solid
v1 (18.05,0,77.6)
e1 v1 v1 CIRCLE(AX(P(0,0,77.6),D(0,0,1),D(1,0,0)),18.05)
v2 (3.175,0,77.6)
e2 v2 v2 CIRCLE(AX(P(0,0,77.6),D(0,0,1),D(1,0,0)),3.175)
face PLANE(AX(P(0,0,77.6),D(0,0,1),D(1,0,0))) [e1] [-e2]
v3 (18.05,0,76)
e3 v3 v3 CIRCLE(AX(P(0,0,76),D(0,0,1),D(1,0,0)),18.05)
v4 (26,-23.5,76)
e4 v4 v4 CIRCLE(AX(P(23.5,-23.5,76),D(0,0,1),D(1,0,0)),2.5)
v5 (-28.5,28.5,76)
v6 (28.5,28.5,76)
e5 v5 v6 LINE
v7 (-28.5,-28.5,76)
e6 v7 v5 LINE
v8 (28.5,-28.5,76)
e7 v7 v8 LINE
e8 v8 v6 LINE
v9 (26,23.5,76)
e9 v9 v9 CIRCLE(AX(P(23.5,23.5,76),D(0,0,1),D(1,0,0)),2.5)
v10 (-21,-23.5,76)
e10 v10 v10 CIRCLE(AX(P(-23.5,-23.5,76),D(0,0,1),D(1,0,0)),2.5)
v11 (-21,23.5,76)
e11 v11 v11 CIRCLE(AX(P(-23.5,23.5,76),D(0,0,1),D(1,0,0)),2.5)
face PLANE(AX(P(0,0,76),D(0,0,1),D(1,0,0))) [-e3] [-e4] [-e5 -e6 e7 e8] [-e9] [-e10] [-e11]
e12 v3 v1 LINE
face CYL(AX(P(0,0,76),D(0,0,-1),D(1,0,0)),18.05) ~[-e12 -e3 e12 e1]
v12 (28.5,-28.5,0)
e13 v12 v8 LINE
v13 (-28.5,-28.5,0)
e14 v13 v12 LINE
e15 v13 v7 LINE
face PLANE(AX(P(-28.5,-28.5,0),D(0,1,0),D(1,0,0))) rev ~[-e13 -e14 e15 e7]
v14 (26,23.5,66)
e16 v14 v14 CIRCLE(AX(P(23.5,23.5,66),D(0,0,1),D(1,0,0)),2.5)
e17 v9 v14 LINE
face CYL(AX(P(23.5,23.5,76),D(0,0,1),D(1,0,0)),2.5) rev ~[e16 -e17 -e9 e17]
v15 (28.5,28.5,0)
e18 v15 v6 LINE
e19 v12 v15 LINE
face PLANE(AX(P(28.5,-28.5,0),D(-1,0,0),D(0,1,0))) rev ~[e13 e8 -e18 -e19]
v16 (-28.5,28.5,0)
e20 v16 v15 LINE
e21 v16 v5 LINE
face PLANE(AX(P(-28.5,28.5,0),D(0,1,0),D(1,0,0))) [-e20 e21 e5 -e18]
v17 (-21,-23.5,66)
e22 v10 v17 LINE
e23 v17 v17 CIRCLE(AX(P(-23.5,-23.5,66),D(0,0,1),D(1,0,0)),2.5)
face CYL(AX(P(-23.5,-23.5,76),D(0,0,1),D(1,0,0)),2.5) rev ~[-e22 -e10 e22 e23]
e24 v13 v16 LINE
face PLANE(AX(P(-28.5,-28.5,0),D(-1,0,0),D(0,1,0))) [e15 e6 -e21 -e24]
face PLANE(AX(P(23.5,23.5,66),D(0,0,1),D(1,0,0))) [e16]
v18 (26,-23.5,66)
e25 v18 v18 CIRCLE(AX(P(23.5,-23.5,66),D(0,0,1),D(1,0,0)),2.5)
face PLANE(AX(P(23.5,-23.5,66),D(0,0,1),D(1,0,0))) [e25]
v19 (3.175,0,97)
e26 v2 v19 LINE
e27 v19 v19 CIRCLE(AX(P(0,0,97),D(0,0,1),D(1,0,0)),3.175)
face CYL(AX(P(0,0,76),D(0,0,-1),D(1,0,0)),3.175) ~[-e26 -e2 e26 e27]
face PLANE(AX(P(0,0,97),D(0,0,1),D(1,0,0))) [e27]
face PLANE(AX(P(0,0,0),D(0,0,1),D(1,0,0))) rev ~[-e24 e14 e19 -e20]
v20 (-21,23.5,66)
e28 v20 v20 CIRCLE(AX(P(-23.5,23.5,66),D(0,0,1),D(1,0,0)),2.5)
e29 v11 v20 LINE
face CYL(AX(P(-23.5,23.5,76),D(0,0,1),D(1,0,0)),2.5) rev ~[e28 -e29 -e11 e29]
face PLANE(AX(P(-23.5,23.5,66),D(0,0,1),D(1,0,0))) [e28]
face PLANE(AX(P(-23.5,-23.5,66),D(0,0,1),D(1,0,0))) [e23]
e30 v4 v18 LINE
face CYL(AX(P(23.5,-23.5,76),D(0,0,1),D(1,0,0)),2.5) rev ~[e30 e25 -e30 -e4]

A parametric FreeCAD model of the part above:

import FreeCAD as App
import Part
import Sketcher

doc = App.newDocument("Part")
body = doc.addObject("PartDesign::Body", "Body")

# Sketch on XY plane
sketch1 = body.newObject("Sketcher::SketchObject", "Sketch")
sketch1.AttachmentSupport = (doc.getObject("XY_Plane"), [""])
sketch1.MapMode = "FlatFace"
sketch1.addGeometry([
    Part.LineSegment(App.Vector(-28, 28, 0), App.Vector(-28, -28, 0)),
    Part.LineSegment(App.Vector(-28, -28, 0), App.Vector(28, -28, 0)),
    Part.LineSegment(App.Vector(28, -28, 0), App.Vector(28, 28, 0)),
    Part.LineSegment(App.Vector(28, 28, 0), App.Vector(-28, 28, 0)),
], False)
sketch1.addConstraint([
    Sketcher.Constraint("Coincident", 0, 2, 1, 1),
    Sketcher.Constraint("Coincident", 1, 2, 2, 1),
    Sketcher.Constraint("Coincident", 2, 2, 3, 1),
    Sketcher.Constraint("Coincident", 3, 2, 0, 1),
    Sketcher.Constraint("Vertical", 0),
    Sketcher.Constraint("Horizontal", 1),
    Sketcher.Constraint("Vertical", 2),
    Sketcher.Constraint("Horizontal", 3),
    Sketcher.Constraint("Symmetric", 0, 2, 2, 2, -1, 1),
    Sketcher.Constraint("Equal", 3, 0),
    Sketcher.Constraint("DistanceX", 1, 1, 1, 2, 57.0),
])
pad1 = body.newObject("PartDesign::Pad", "Pad")
pad1.Profile = sketch1
pad1.Length = 76

# Sketch on XY plane
sketch2 = body.newObject("Sketcher::SketchObject", "Sketch001")
sketch2.AttachmentSupport = (doc.getObject("XY_Plane"), [""])
sketch2.MapMode = "FlatFace"
sketch2.AttachmentOffset = App.Placement(App.Vector(0, 0, 76), App.Rotation())
sketch2.addGeometry([
    Part.Circle(App.Vector(0, 0, 0), App.Vector(0, 0, 1), 18.1),
    Part.Circle(App.Vector(0, 0, 0), App.Vector(0, 0, 1), 3.2),
], False)
sketch2.addConstraint([
    Sketcher.Constraint("Coincident", 0, 3, -1, 1),
    Sketcher.Constraint("Coincident", 1, 3, -1, 1),
    Sketcher.Constraint("Diameter", 0, 36.1),
    Sketcher.Constraint("Diameter", 1, 6.35),
])
pad2 = body.newObject("PartDesign::Pad", "Pad001")
pad2.Profile = sketch2
pad2.Length = 1.6

# Sketch on XY plane
sketch3 = body.newObject("Sketcher::SketchObject", "Sketch002")
sketch3.AttachmentSupport = (doc.getObject("XY_Plane"), [""])
sketch3.MapMode = "FlatFace"
sketch3.AttachmentOffset = App.Placement(App.Vector(0, 0, 76), App.Rotation())
sketch3.addGeometry(Part.Circle(App.Vector(0, 0, 0), App.Vector(0, 0, 1), 3.2), False)
sketch3.addConstraint([
    Sketcher.Constraint("Coincident", 0, 3, -1, 1),
    Sketcher.Constraint("Diameter", 0, 6.35),
])
pad3 = body.newObject("PartDesign::Pad", "Pad002")
pad3.Profile = sketch3
pad3.Length = 21

# Sketch on XY plane
sketch4 = body.newObject("Sketcher::SketchObject", "Sketch003")
sketch4.AttachmentSupport = (doc.getObject("XY_Plane"), [""])
sketch4.MapMode = "FlatFace"
sketch4.AttachmentOffset = App.Placement(App.Vector(0, 0, 76), App.Rotation())
sketch4.addGeometry([
    Part.Circle(App.Vector(-23.5, 23.5, 0), App.Vector(0, 0, 1), 2.5),
    Part.Circle(App.Vector(23.5, 23.5, 0), App.Vector(0, 0, 1), 2.5),
    Part.Circle(App.Vector(23.5, -23.5, 0), App.Vector(0, 0, 1), 2.5),
    Part.Circle(App.Vector(-23.5, -23.5, 0), App.Vector(0, 0, 1), 2.5),
], False)
sketch4.addConstraint([
    Sketcher.Constraint("Equal", 0, 1),
    Sketcher.Constraint("Equal", 1, 2),
    Sketcher.Constraint("Equal", 2, 3),
    Sketcher.Constraint("Symmetric", 0, 3, 2, 3, -1, 1),
    Sketcher.Constraint("Symmetric", 1, 3, 3, 3, -1, 1),
    Sketcher.Constraint("Symmetric", 0, 3, 1, 3, -2),
    Sketcher.Constraint("Diameter", 0, 5.0),
    Sketcher.Constraint("DistanceX", 0, 3, 1, 3, 47.0),
    Sketcher.Constraint("DistanceY", 2, 3, 1, 3, 47.0),
])
pocket1 = body.newObject("PartDesign::Pocket", "Pocket")
pocket1.Profile = sketch4
pocket1.Length = 10

doc.recompute()
